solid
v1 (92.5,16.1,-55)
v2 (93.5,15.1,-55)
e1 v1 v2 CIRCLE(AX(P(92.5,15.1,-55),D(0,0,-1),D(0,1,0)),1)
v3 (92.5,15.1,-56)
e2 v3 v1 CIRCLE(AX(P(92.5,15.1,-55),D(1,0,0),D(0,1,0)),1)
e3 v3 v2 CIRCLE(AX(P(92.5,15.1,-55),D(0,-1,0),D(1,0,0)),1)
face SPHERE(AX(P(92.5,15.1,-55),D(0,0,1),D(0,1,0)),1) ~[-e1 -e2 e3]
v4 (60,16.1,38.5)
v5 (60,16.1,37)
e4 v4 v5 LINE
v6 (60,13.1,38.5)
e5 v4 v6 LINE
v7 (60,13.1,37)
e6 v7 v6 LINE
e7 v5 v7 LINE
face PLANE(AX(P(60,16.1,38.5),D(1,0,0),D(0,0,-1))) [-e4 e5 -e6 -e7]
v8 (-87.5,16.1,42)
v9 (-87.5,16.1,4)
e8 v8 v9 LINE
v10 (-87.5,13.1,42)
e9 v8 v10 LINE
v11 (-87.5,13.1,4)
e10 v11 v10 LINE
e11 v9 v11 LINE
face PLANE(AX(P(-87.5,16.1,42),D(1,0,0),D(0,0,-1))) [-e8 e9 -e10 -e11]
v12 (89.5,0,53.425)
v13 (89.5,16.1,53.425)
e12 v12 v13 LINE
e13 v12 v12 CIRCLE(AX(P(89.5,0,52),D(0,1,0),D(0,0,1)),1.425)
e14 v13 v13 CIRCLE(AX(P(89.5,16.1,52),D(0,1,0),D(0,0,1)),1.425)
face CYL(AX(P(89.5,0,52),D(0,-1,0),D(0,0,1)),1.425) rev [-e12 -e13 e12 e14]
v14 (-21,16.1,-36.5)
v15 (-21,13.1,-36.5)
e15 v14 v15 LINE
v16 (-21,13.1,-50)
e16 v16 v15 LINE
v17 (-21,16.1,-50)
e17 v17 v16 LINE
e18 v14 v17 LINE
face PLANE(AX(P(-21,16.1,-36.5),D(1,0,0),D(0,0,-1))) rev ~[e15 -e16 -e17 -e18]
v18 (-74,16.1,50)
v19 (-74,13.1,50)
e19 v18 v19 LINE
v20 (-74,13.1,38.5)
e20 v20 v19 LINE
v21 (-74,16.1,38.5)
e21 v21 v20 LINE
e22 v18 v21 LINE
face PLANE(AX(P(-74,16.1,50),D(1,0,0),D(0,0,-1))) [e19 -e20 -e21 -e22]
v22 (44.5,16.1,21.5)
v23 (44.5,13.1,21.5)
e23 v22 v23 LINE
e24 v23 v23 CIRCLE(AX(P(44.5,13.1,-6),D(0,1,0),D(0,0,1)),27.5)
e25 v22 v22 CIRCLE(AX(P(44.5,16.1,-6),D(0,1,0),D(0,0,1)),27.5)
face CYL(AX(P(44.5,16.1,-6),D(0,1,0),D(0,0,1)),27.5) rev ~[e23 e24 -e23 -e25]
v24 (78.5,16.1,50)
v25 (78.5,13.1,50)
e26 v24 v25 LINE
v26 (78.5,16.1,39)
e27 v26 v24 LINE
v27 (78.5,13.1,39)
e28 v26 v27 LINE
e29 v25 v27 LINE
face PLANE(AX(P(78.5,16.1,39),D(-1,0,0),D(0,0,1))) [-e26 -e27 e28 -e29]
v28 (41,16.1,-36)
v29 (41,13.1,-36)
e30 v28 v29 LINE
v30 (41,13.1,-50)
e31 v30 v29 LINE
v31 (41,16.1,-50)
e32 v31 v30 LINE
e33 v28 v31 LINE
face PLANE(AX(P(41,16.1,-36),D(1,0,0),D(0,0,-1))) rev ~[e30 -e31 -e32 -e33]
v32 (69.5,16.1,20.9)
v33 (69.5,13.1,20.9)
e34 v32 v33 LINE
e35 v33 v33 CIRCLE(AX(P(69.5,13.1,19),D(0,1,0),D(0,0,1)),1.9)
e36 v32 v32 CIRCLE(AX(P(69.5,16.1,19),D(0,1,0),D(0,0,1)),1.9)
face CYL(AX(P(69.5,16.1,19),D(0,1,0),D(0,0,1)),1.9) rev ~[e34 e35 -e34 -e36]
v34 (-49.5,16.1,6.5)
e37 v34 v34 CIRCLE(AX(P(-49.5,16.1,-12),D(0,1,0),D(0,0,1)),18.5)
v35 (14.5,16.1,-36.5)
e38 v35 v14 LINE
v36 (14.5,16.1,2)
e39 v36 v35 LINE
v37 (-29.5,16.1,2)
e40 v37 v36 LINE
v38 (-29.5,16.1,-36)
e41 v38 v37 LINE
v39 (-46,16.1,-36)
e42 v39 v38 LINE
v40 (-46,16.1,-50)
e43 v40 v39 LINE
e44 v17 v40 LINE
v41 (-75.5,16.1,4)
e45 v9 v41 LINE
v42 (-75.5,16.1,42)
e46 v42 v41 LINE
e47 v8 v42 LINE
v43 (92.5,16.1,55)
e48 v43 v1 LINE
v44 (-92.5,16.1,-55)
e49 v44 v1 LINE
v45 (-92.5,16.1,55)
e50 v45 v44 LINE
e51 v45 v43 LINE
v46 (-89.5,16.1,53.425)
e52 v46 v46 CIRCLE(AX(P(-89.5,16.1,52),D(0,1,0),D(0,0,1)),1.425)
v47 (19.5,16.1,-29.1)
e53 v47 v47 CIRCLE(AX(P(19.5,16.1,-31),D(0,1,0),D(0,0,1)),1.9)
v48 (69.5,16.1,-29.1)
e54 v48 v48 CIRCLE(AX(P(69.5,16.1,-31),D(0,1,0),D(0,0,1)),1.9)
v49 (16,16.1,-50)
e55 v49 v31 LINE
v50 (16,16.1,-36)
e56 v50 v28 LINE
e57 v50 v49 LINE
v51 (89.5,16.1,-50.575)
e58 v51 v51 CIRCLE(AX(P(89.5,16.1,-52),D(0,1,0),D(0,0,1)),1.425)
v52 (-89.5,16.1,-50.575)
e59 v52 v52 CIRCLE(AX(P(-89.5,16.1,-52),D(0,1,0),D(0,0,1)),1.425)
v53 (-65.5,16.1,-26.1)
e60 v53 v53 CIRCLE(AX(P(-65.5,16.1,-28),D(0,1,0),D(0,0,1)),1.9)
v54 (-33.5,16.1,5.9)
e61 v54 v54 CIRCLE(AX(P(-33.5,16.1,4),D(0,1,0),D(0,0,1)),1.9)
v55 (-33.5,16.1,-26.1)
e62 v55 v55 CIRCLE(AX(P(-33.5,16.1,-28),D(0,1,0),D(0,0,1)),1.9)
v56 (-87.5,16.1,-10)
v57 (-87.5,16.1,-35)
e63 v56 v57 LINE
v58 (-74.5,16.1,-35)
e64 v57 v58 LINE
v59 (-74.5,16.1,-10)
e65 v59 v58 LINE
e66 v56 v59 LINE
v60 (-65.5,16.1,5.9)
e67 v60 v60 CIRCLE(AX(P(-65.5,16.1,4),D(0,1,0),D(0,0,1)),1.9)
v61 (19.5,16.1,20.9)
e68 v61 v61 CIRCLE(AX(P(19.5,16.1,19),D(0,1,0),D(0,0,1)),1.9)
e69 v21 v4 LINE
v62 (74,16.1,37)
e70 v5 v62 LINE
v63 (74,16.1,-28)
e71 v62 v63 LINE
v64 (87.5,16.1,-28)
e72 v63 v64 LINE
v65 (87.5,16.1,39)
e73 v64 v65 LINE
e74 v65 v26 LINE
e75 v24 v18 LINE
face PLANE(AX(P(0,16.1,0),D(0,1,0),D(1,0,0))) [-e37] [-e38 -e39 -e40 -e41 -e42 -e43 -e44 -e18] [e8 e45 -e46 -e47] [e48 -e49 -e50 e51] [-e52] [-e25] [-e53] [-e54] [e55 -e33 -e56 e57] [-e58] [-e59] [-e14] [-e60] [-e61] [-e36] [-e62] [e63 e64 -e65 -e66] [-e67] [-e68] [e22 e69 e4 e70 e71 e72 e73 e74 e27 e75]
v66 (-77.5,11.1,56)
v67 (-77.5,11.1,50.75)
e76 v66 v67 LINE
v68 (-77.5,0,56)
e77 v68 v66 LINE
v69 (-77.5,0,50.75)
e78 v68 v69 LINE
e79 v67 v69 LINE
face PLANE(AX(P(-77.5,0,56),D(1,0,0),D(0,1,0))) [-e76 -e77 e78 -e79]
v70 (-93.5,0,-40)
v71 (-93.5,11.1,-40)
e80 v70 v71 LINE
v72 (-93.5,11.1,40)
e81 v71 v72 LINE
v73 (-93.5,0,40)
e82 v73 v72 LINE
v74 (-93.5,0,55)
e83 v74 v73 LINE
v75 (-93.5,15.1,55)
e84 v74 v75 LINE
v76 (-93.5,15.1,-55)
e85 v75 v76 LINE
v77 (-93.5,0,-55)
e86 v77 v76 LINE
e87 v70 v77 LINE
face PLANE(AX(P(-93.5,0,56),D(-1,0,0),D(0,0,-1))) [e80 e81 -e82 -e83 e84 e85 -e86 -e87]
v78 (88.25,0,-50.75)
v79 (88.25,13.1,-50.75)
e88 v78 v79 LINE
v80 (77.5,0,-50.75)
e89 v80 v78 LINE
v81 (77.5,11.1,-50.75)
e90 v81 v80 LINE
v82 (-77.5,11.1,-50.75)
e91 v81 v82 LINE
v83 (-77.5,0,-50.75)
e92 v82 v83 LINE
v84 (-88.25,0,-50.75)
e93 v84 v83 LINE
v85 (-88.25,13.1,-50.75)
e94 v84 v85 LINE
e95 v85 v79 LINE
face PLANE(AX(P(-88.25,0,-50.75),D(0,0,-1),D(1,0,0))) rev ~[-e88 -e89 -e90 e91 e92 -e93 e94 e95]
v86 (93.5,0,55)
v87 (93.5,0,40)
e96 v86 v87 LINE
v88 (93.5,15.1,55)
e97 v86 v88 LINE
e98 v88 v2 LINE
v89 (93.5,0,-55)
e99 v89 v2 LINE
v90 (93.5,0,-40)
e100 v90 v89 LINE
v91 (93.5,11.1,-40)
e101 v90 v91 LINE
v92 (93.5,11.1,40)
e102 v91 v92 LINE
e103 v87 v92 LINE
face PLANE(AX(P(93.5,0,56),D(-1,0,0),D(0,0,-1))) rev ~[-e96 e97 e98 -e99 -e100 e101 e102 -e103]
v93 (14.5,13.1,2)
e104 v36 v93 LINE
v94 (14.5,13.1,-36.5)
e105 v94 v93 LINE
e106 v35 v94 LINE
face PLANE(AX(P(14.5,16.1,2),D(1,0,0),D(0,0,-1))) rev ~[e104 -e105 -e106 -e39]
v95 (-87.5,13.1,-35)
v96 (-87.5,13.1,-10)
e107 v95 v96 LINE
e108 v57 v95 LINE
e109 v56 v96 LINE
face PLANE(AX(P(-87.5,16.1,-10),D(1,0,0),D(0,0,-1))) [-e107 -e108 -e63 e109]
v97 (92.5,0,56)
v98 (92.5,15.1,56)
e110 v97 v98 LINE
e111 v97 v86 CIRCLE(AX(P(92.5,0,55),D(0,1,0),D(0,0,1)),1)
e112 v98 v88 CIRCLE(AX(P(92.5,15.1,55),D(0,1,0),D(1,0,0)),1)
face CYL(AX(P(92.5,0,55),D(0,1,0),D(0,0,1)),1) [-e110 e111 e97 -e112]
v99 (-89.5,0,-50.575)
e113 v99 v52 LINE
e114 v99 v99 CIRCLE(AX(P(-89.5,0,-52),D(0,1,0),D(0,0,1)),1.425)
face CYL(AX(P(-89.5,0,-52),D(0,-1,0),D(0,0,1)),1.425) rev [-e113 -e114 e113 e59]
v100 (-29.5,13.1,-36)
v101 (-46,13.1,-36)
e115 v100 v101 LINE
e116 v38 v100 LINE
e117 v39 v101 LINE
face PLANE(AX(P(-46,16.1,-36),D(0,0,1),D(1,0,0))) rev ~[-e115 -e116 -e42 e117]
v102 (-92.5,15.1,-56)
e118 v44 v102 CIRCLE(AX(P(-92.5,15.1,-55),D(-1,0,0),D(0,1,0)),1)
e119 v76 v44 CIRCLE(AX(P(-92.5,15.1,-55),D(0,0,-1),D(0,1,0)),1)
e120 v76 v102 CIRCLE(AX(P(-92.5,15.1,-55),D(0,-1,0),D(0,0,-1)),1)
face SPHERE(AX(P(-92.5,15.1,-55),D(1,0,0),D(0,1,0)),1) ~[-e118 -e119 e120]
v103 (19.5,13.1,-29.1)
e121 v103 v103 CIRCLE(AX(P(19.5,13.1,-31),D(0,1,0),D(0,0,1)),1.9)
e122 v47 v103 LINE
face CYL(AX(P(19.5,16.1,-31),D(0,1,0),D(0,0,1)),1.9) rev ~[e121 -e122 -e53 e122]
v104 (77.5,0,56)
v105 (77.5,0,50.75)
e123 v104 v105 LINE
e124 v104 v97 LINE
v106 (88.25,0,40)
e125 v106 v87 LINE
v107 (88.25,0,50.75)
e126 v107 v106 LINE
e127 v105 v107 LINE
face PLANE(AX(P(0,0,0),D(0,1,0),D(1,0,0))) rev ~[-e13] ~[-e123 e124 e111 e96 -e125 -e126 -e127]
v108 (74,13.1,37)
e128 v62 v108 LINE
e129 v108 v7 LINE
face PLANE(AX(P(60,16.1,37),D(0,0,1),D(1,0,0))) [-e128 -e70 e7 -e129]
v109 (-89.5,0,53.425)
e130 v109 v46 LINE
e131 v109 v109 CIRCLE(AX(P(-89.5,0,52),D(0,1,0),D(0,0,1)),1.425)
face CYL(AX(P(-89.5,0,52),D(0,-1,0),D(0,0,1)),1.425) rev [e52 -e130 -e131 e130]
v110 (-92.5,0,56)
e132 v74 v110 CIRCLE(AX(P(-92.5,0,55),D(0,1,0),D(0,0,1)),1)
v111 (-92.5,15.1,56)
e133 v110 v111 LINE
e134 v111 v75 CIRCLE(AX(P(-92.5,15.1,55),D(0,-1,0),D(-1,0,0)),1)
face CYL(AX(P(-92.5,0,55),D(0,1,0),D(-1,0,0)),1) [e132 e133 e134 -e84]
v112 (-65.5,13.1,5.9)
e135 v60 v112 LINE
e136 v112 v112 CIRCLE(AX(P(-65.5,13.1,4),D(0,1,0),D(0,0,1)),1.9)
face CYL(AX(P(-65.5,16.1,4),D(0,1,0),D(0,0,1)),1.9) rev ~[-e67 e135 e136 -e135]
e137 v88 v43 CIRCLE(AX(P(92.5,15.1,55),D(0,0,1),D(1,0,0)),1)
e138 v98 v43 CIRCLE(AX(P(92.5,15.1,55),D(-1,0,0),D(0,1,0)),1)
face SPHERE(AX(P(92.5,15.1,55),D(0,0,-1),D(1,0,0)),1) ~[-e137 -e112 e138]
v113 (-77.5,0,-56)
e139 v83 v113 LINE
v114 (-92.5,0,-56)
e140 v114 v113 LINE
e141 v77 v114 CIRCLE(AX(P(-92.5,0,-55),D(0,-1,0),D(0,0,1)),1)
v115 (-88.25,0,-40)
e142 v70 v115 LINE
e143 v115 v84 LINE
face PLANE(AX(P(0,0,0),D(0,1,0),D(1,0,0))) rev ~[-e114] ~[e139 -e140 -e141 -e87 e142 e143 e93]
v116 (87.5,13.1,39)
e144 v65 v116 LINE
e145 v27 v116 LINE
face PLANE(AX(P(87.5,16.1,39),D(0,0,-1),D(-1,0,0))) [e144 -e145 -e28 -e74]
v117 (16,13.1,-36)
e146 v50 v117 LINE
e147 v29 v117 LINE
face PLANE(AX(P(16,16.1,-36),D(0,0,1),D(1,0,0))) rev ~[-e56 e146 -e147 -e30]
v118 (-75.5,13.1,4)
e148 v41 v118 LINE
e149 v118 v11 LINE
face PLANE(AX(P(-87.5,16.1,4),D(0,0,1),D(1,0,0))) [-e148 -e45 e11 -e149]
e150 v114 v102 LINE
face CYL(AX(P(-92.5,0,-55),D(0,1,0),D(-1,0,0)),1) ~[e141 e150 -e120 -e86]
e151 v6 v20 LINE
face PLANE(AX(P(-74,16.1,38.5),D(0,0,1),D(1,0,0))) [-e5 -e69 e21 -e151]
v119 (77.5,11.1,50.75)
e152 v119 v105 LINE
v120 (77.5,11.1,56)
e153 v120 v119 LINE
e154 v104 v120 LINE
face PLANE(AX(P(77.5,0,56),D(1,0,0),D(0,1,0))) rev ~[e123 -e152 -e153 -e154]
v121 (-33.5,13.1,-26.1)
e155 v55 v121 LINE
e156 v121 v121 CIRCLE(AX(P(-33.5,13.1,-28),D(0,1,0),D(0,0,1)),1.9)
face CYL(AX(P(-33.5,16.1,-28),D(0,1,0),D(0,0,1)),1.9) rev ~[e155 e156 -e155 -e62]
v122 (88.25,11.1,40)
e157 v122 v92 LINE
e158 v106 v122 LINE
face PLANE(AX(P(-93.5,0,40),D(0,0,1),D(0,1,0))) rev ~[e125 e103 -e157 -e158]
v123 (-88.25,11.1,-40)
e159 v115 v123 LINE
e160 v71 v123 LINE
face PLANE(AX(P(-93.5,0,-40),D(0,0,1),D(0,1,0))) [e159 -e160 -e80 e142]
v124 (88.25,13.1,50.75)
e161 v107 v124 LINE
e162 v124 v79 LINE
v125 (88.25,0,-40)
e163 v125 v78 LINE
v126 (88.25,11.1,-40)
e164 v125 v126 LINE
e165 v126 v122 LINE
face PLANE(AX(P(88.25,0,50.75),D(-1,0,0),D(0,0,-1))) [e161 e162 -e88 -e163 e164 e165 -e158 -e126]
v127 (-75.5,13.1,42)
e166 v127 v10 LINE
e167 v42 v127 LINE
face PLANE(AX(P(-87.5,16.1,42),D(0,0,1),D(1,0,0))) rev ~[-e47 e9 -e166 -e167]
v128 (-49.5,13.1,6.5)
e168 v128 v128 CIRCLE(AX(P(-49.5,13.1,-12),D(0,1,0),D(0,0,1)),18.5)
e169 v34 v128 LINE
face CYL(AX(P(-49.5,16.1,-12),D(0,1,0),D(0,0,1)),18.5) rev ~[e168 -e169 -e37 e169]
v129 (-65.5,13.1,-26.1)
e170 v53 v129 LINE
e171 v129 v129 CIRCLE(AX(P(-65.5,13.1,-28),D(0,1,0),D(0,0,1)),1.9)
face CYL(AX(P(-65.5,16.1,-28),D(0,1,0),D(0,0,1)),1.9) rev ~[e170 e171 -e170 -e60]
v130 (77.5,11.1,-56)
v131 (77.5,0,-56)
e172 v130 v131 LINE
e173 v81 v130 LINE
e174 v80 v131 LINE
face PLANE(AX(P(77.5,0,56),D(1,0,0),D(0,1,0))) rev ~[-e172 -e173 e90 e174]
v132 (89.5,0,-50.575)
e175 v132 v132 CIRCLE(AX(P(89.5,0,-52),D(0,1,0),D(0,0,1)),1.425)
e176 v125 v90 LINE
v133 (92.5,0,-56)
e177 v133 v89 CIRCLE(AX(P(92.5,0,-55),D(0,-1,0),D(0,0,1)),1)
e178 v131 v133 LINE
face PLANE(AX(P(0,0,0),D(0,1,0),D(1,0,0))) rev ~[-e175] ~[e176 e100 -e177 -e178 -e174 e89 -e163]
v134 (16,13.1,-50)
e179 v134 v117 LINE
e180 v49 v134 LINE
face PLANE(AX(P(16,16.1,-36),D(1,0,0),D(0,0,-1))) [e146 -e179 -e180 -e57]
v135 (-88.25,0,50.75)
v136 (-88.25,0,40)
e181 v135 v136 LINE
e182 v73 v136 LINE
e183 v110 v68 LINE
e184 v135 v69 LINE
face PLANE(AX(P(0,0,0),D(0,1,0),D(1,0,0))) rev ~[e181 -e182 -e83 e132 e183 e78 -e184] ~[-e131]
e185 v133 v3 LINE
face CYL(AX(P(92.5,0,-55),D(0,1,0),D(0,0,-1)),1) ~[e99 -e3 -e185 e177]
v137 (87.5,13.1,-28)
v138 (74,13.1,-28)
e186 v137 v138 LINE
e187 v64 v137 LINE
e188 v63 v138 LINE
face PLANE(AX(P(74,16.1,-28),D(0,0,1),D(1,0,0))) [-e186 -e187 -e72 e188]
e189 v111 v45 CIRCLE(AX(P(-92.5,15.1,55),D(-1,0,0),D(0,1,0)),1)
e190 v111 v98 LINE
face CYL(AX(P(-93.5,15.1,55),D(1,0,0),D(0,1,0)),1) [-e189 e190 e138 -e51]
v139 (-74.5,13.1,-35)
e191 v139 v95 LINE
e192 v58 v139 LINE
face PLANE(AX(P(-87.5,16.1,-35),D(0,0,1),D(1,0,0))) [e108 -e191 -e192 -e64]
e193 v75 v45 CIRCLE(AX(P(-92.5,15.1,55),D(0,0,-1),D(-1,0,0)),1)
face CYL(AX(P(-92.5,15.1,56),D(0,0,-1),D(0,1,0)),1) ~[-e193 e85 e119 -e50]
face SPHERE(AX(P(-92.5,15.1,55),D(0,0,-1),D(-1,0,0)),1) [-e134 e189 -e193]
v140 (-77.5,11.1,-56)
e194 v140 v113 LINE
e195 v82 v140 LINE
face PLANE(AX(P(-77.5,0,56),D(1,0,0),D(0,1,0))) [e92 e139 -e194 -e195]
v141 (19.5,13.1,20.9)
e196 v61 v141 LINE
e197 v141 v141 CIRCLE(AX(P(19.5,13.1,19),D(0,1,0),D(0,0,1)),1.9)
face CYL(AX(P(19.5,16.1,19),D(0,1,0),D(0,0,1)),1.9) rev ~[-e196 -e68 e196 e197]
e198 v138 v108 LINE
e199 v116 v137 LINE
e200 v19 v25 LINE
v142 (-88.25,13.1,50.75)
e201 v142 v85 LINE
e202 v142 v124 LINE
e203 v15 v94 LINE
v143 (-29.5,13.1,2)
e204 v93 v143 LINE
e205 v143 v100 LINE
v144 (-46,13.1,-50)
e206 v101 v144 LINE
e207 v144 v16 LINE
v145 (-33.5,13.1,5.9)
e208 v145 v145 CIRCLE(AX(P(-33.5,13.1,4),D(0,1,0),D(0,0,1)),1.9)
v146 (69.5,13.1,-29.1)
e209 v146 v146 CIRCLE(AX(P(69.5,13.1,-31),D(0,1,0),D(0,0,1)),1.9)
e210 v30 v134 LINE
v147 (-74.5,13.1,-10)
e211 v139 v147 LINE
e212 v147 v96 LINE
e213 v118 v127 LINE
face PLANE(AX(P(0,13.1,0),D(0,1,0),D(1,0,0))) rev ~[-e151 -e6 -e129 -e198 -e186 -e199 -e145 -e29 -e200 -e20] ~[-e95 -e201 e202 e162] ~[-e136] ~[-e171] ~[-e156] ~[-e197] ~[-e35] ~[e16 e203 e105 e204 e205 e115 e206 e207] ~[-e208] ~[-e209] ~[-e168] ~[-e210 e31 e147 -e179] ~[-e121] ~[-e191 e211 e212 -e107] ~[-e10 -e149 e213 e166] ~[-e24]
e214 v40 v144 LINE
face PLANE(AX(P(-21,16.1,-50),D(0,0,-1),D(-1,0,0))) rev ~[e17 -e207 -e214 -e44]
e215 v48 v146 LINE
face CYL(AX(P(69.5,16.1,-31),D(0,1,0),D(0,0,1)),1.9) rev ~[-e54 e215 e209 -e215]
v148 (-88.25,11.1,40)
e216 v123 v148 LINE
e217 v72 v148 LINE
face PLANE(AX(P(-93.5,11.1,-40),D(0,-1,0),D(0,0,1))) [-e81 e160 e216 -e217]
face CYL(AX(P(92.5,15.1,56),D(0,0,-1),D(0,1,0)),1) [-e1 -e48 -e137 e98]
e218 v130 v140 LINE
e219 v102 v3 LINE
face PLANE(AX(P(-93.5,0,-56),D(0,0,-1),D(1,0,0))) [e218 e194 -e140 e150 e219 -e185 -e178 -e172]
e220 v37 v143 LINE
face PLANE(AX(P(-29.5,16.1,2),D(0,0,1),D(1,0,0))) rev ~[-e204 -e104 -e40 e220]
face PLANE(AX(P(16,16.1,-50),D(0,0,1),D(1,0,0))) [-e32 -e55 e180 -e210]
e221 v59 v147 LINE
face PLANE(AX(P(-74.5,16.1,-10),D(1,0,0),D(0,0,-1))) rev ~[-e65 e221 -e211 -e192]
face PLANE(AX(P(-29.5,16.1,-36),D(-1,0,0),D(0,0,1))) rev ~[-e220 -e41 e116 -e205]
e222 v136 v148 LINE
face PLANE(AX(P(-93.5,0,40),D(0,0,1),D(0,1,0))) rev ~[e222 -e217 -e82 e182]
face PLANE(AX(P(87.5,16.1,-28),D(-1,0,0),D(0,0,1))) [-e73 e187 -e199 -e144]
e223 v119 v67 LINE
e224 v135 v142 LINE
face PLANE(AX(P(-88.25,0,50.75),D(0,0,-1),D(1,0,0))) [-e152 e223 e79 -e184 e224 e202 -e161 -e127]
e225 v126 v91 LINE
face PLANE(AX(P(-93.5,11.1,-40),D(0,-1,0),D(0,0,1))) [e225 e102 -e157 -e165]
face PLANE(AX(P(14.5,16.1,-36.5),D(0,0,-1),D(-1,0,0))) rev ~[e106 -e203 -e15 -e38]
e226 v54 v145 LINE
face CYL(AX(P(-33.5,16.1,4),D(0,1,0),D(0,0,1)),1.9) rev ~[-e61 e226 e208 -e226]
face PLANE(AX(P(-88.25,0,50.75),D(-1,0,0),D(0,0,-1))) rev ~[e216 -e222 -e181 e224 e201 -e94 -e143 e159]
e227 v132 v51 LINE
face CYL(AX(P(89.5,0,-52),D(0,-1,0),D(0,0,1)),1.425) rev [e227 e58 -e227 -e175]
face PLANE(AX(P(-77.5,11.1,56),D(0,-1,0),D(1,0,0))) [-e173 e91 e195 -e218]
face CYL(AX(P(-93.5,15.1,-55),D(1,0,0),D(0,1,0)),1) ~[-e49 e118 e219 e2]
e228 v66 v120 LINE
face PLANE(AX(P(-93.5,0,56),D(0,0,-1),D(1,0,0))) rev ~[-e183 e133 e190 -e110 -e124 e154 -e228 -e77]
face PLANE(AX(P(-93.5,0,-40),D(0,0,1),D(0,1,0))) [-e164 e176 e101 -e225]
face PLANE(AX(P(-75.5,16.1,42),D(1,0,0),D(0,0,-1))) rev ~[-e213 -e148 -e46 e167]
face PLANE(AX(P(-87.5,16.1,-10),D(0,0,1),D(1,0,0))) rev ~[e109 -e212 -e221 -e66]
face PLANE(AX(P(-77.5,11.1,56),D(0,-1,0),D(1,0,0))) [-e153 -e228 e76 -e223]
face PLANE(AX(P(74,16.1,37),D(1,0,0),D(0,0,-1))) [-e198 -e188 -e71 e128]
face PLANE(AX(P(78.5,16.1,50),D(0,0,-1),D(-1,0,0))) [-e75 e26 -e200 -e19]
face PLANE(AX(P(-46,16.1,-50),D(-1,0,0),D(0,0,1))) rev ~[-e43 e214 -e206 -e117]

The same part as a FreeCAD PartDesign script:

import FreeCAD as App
import Part
import Sketcher

V = App.Vector
Q = App.Units.Quantity


def edges_at(feature, points):
    """Names of the edges that pass closest to the given points."""
    edges = feature.Shape.Edges
    near = lambda p: min(range(len(edges)), key=lambda i: edges[i].distToShape(Part.Vertex(*p))[0])
    return sorted({f"Edge{near(p) + 1}" for p in points})


def add_polygon(sketch, points):
    """Adds a closed chain of lines whose ends are joined by coincident constraints."""
    first, n = sketch.GeometryCount, len(points)
    for a, b in zip(points, points[1:] + points[:1]):
        sketch.addGeometry(Part.LineSegment(App.Vector(*a, 0), App.Vector(*b, 0)), False)
    for i in range(n):
        sketch.addConstraint(Sketcher.Constraint("Coincident", first + i, 2, first + (i + 1) % n, 1))

doc = App.newDocument("Part")
body = doc.addObject("PartDesign::Body", "Body")

sketch1 = body.newObject("Sketcher::SketchObject", "Sketch")
sketch1.AttachmentSupport = (doc.getObject("XZ_Plane"), [""])
sketch1.MapMode = "FlatFace"
add_polygon(sketch1, [(-93.5, -56), (-93.5, 56), (93.5, 56), (93.5, -56)])
sketch1.addGeometry(Part.Circle(V(-89.5, 52, 0), V(0, 0, 1), 1.4), False)
sketch1.addGeometry(Part.Circle(V(89.5, 52, 0), V(0, 0, 1), 1.4), False)
sketch1.addGeometry(Part.Circle(V(-89.5, -52, 0), V(0, 0, 1), 1.4), False)
add_polygon(sketch1, [(88.2, 50.8), (-88.2, 50.8), (-88.2, -50.8), (88.2, -50.8)])
sketch1.addGeometry(Part.Circle(V(89.5, -52, 0), V(0, 0, 1), 1.4), False)
sketch1.addConstraint(Sketcher.Constraint("Vertical", 0))
sketch1.addConstraint(Sketcher.Constraint("Horizontal", 1))
sketch1.addConstraint(Sketcher.Constraint("Vertical", 2))
sketch1.addConstraint(Sketcher.Constraint("Horizontal", 3))
sketch1.addConstraint(Sketcher.Constraint("Horizontal", 7))
sketch1.addConstraint(Sketcher.Constraint("Vertical", 8))
sketch1.addConstraint(Sketcher.Constraint("Horizontal", 9))
sketch1.addConstraint(Sketcher.Constraint("Vertical", 10))
sketch1.addConstraint(Sketcher.Constraint("Equal", 4, 5))
sketch1.addConstraint(Sketcher.Constraint("Equal", 5, 6))
sketch1.addConstraint(Sketcher.Constraint("Equal", 6, 11))
sketch1.addConstraint(Sketcher.Constraint("Symmetric", 5, 3, 6, 3, -1, 1))
sketch1.addConstraint(Sketcher.Constraint("Symmetric", 4, 3, 11, 3, -1, 1))
sketch1.addConstraint(Sketcher.Constraint("Symmetric", 0, 2, 2, 2, -1, 1))
sketch1.addConstraint(Sketcher.Constraint("Symmetric", 7, 2, 9, 2, -1, 1))
sketch1.addConstraint(Sketcher.Constraint("Symmetric", 4, 3, 5, 3, -2))
sketch1.addConstraint(Sketcher.Constraint("Diameter", 4, Q("2.85 mm")))
sketch1.addConstraint(Sketcher.Constraint("DistanceX", 1, 1, 1, 2, Q("187 mm")))
sketch1.addConstraint(Sketcher.Constraint("DistanceY", 0, 1, 0, 2, Q("112 mm")))
sketch1.addConstraint(Sketcher.Constraint("DistanceX", 7, 2, 7, 1, Q("176.5 mm")))
sketch1.addConstraint(Sketcher.Constraint("DistanceY", 8, 2, 8, 1, Q("101.5 mm")))
sketch1.addConstraint(Sketcher.Constraint("DistanceY", -1, 1, 4, 3, Q("52 mm")))
sketch1.addConstraint(Sketcher.Constraint("DistanceX", 4, 3, 5, 3, Q("179 mm")))
pad1 = body.newObject("PartDesign::Pad", "Pad")
pad1.Profile = sketch1
pad1.Length = 16.1
pad1.Reversed = True

sketch2 = body.newObject("Sketcher::SketchObject", "Sketch001")
sketch2.AttachmentSupport = (doc.getObject("XZ_Plane"), [""])
sketch2.MapMode = "FlatFace"
sketch2.AttachmentOffset = App.Placement(V(0, 0, -16.1), App.Rotation())
add_polygon(sketch2, [(-88, -51), (-88, 51), (88, 51), (88, -51)])
sketch2.addConstraint(Sketcher.Constraint("Vertical", 0))
sketch2.addConstraint(Sketcher.Constraint("Horizontal", 1))
sketch2.addConstraint(Sketcher.Constraint("Vertical", 2))
sketch2.addConstraint(Sketcher.Constraint("Horizontal", 3))
sketch2.addConstraint(Sketcher.Constraint("Symmetric", 0, 2, 2, 2, -1, 1))
sketch2.addConstraint(Sketcher.Constraint("DistanceX", 1, 1, 1, 2, Q("176.5 mm")))
sketch2.addConstraint(Sketcher.Constraint("DistanceY", 0, 1, 0, 2, Q("101.5 mm")))
pad2 = body.newObject("PartDesign::Pad", "Pad001")
pad2.Profile = sketch2
pad2.Length = 3

sketch3 = body.newObject("Sketcher::SketchObject", "Sketch002")
sketch3.AttachmentSupport = (doc.getObject("XZ_Plane"), [""])
sketch3.MapMode = "FlatFace"
sketch3.AttachmentOffset = App.Placement(V(0, 0, -16.1), App.Rotation())
add_polygon(sketch3, [(-88, 4), (-88, 42), (-76, 42), (-76, 4)])
sketch3.addConstraint(Sketcher.Constraint("Vertical", 0))
sketch3.addConstraint(Sketcher.Constraint("Horizontal", 1))
sketch3.addConstraint(Sketcher.Constraint("Vertical", 2))
sketch3.addConstraint(Sketcher.Constraint("Horizontal", 3))
sketch3.addConstraint(Sketcher.Constraint("DistanceX", 1, 1, 1, 2, Q("12 mm")))
sketch3.addConstraint(Sketcher.Constraint("DistanceY", 0, 1, 0, 2, Q("38 mm")))
sketch3.addConstraint(Sketcher.Constraint("DistanceY", -1, 1, 0, 2, Q("42 mm")))
sketch3.addConstraint(Sketcher.Constraint("DistanceX", 0, 2, -1, 1, Q("87.5 mm")))
pocket1 = body.newObject("PartDesign::Pocket", "Pocket")
pocket1.Profile = sketch3
pocket1.Type = "UpToFirst"
pocket1.Reversed = True

sketch4 = body.newObject("Sketcher::SketchObject", "Sketch003")
sketch4.AttachmentSupport = (doc.getObject("XZ_Plane"), [""])
sketch4.MapMode = "FlatFace"
sketch4.AttachmentOffset = App.Placement(V(0, 0, -16.1), App.Rotation())
add_polygon(sketch4, [(-30, -36), (-30, 2), (14, 2), (14, -36), (-21, -36), (-21, -50), (-46, -50), (-46, -36)])
sketch4.addConstraint(Sketcher.Constraint("Vertical", 0))
sketch4.addConstraint(Sketcher.Constraint("Horizontal", 1))
sketch4.addConstraint(Sketcher.Constraint("Vertical", 2))
sketch4.addConstraint(Sketcher.Constraint("Horizontal", 3))
sketch4.addConstraint(Sketcher.Constraint("Vertical", 4))
sketch4.addConstraint(Sketcher.Constraint("Horizontal", 5))
sketch4.addConstraint(Sketcher.Constraint("Vertical", 6))
sketch4.addConstraint(Sketcher.Constraint("Horizontal", 7))
sketch4.addConstraint(Sketcher.Constraint("DistanceX", 1, 1, 1, 2, Q("44 mm")))
sketch4.addConstraint(Sketcher.Constraint("DistanceX", 5, 2, 5, 1, Q("25 mm")))
sketch4.addConstraint(Sketcher.Constraint("DistanceY", 0, 1, 0, 2, Q("38 mm")))
sketch4.addConstraint(Sketcher.Constraint("DistanceY", 6, 1, 6, 2, Q("14 mm")))
sketch4.addConstraint(Sketcher.Constraint("DistanceX", 3, 2, 3, 1, Q("35.5 mm")))
sketch4.addConstraint(Sketcher.Constraint("DistanceY", 2, 2, 2, 1, Q("38.5 mm")))
sketch4.addConstraint(Sketcher.Constraint("DistanceY", -1, 1, 0, 2, Q("2 mm")))
sketch4.addConstraint(Sketcher.Constraint("DistanceX", 3, 2, -1, 1, Q("21 mm")))
pocket2 = body.newObject("PartDesign::Pocket", "Pocket001")
pocket2.Profile = sketch4
pocket2.Type = "UpToFirst"
pocket2.Reversed = True

sketch5 = body.newObject("Sketcher::SketchObject", "Sketch004")
sketch5.AttachmentSupport = (doc.getObject("XZ_Plane"), [""])
sketch5.MapMode = "FlatFace"
sketch5.AttachmentOffset = App.Placement(V(0, 0, -16.1), App.Rotation())
add_polygon(sketch5, [(-88, -35), (-88, -10), (-74, -10), (-74, -35)])
sketch5.addConstraint(Sketcher.Constraint("Vertical", 0))
sketch5.addConstraint(Sketcher.Constraint("Horizontal", 1))
sketch5.addConstraint(Sketcher.Constraint("Vertical", 2))
sketch5.addConstraint(Sketcher.Constraint("Horizontal", 3))
sketch5.addConstraint(Sketcher.Constraint("DistanceX", 1, 1, 1, 2, Q("13 mm")))
sketch5.addConstraint(Sketcher.Constraint("DistanceY", 0, 1, 0, 2, Q("25 mm")))
sketch5.addConstraint(Sketcher.Constraint("DistanceY", 0, 2, -1, 1, Q("10 mm")))
sketch5.addConstraint(Sketcher.Constraint("DistanceX", 0, 2, -1, 1, Q("87.5 mm")))
pocket3 = body.newObject("PartDesign::Pocket", "Pocket002")
pocket3.Profile = sketch5
pocket3.Type = "UpToFirst"
pocket3.Reversed = True

sketch6 = body.newObject("Sketcher::SketchObject", "Sketch005")
sketch6.AttachmentSupport = (doc.getObject("XZ_Plane"), [""])
sketch6.MapMode = "FlatFace"
sketch6.AttachmentOffset = App.Placement(V(0, 0, -16.1), App.Rotation())
add_polygon(sketch6, [(60, 37), (60, 38.5), (-74, 38.5), (-74, 50), (78.5, 50), (78.5, 39), (87.5, 39), (87.5, -28), (74, -28), (74, 37)])
sketch6.addConstraint(Sketcher.Constraint("Vertical", 0))
sketch6.addConstraint(Sketcher.Constraint("Horizontal", 1))
sketch6.addConstraint(Sketcher.Constraint("Vertical", 2))
sketch6.addConstraint(Sketcher.Constraint("Horizontal", 3))
sketch6.addConstraint(Sketcher.Constraint("Vertical", 4))
sketch6.addConstraint(Sketcher.Constraint("Horizontal", 5))
sketch6.addConstraint(Sketcher.Constraint("Vertical", 6))
sketch6.addConstraint(Sketcher.Constraint("Horizontal", 7))
sketch6.addConstraint(Sketcher.Constraint("Vertical", 8))
sketch6.addConstraint(Sketcher.Constraint("Horizontal", 9))
sketch6.addConstraint(Sketcher.Constraint("DistanceX", 1, 2, 1, 1, Q("134 mm")))
sketch6.addConstraint(Sketcher.Constraint("DistanceX", 5, 1, 5, 2, Q("9 mm")))
sketch6.addConstraint(Sketcher.Constraint("DistanceX", 9, 2, 9, 1, Q("14 mm")))
sketch6.addConstraint(Sketcher.Constraint("DistanceY", 4, 2, 4, 1, Q("11 mm")))
sketch6.addConstraint(Sketcher.Constraint("DistanceY", 6, 2, 6, 1, Q("67 mm")))
sketch6.addConstraint(Sketcher.Constraint("DistanceY", 8, 1, 8, 2, Q("65 mm")))
sketch6.addConstraint(Sketcher.Constraint("DistanceX", 3, 1, 3, 2, Q("152.5 mm")))
sketch6.addConstraint(Sketcher.Constraint("DistanceY", 0, 1, 0, 2, Q("1.5 mm")))
sketch6.addConstraint(Sketcher.Constraint("DistanceX", -1, 1, 0, 2, Q("60 mm")))
sketch6.addConstraint(Sketcher.Constraint("DistanceY", -1, 1, 2, 2, Q("50 mm")))
pocket4 = body.newObject("PartDesign::Pocket", "Pocket003")
pocket4.Profile = sketch6
pocket4.Type = "UpToFirst"
pocket4.Reversed = True

sketch7 = body.newObject("Sketcher::SketchObject", "Sketch006")
sketch7.AttachmentSupport = (doc.getObject("XZ_Plane"), [""])
sketch7.MapMode = "FlatFace"
sketch7.AttachmentOffset = App.Placement(V(0, 0, -16.1), App.Rotation())
add_polygon(sketch7, [(16, -50), (16, -36), (41, -36), (41, -50)])
sketch7.addConstraint(Sketcher.Constraint("Vertical", 0))
sketch7.addConstraint(Sketcher.Constraint("Horizontal", 1))
sketch7.addConstraint(Sketcher.Constraint("Vertical", 2))
sketch7.addConstraint(Sketcher.Constraint("Horizontal", 3))
sketch7.addConstraint(Sketcher.Constraint("DistanceX", 1, 1, 1, 2, Q("25 mm")))
sketch7.addConstraint(Sketcher.Constraint("DistanceY", 0, 1, 0, 2, Q("14 mm")))
sketch7.addConstraint(Sketcher.Constraint("DistanceX", -1, 1, 0, 2, Q("16 mm")))
sketch7.addConstraint(Sketcher.Constraint("DistanceY", 0, 2, -1, 1, Q("36 mm")))
pocket5 = body.newObject("PartDesign::Pocket", "Pocket004")
pocket5.Profile = sketch7
pocket5.Type = "UpToFirst"
pocket5.Reversed = True

sketch8 = body.newObject("Sketcher::SketchObject", "Sketch007")
sketch8.AttachmentSupport = (doc.getObject("XZ_Plane"), [""])
sketch8.MapMode = "FlatFace"
sketch8.AttachmentOffset = App.Placement(V(0, 0, -16.1), App.Rotation())
sketch8.addGeometry(Part.Circle(V(-65.5, 4, 0), V(0, 0, 1), 1.9), False)
sketch8.addConstraint(Sketcher.Constraint("Diameter", 0, Q("3.8 mm")))
sketch8.addConstraint(Sketcher.Constraint("DistanceY", -1, 1, 0, 3, Q("4 mm")))
sketch8.addConstraint(Sketcher.Constraint("DistanceX", 0, 3, -1, 1, Q("65.5 mm")))
pocket6 = body.newObject("PartDesign::Pocket", "Pocket005")
pocket6.Profile = sketch8
pocket6.Type = "UpToFirst"
pocket6.Reversed = True

sketch9 = body.newObject("Sketcher::SketchObject", "Sketch008")
sketch9.AttachmentSupport = (doc.getObject("XZ_Plane"), [""])
sketch9.MapMode = "FlatFace"
sketch9.AttachmentOffset = App.Placement(V(0, 0, -16.1), App.Rotation())
sketch9.addGeometry(Part.Circle(V(-65.5, -28, 0), V(0, 0, 1), 1.9), False)
sketch9.addConstraint(Sketcher.Constraint("Diameter", 0, Q("3.8 mm")))
sketch9.addConstraint(Sketcher.Constraint("DistanceY", 0, 3, -1, 1, Q("28 mm")))
sketch9.addConstraint(Sketcher.Constraint("DistanceX", 0, 3, -1, 1, Q("65.5 mm")))
pocket7 = body.newObject("PartDesign::Pocket", "Pocket006")
pocket7.Profile = sketch9
pocket7.Type = "UpToFirst"
pocket7.Reversed = True

sketch10 = body.newObject("Sketcher::SketchObject", "Sketch009")
sketch10.AttachmentSupport = (doc.getObject("XZ_Plane"), [""])
sketch10.MapMode = "FlatFace"
sketch10.AttachmentOffset = App.Placement(V(0, 0, -16.1), App.Rotation())
sketch10.addGeometry(Part.Circle(V(-33.5, -28, 0), V(0, 0, 1), 1.9), False)
sketch10.addConstraint(Sketcher.Constraint("Diameter", 0, Q("3.8 mm")))
sketch10.addConstraint(Sketcher.Constraint("DistanceY", 0, 3, -1, 1, Q("28 mm")))
sketch10.addConstraint(Sketcher.Constraint("DistanceX", 0, 3, -1, 1, Q("33.5 mm")))
pocket8 = body.newObject("PartDesign::Pocket", "Pocket007")
pocket8.Profile = sketch10
pocket8.Type = "UpToFirst"
pocket8.Reversed = True

sketch11 = body.newObject("Sketcher::SketchObject", "Sketch010")
sketch11.AttachmentSupport = (doc.getObject("XZ_Plane"), [""])
sketch11.MapMode = "FlatFace"
sketch11.AttachmentOffset = App.Placement(V(0, 0, -16.1), App.Rotation())
sketch11.addGeometry(Part.Circle(V(-33.5, 4, 0), V(0, 0, 1), 1.9), False)
sketch11.addConstraint(Sketcher.Constraint("Diameter", 0, Q("3.8 mm")))
sketch11.addConstraint(Sketcher.Constraint("DistanceY", -1, 1, 0, 3, Q("4 mm")))
sketch11.addConstraint(Sketcher.Constraint("DistanceX", 0, 3, -1, 1, Q("33.5 mm")))
pocket9 = body.newObject("PartDesign::Pocket", "Pocket008")
pocket9.Profile = sketch11
pocket9.Type = "UpToFirst"
pocket9.Reversed = True

sketch12 = body.newObject("Sketcher::SketchObject", "Sketch011")
sketch12.AttachmentSupport = (doc.getObject("XZ_Plane"), [""])
sketch12.MapMode = "FlatFace"
sketch12.AttachmentOffset = App.Placement(V(0, 0, -16.1), App.Rotation())
sketch12.addGeometry(Part.Circle(V(-50, -12, 0), V(0, 0, 1), 18), False)
sketch12.addConstraint(Sketcher.Constraint("Diameter", 0, Q("37 mm")))
sketch12.addConstraint(Sketcher.Constraint("DistanceY", 0, 3, -1, 1, Q("12 mm")))
sketch12.addConstraint(Sketcher.Constraint("DistanceX", 0, 3, -1, 1, Q("49.5 mm")))
pocket10 = body.newObject("PartDesign::Pocket", "Pocket009")
pocket10.Profile = sketch12
pocket10.Type = "UpToFirst"
pocket10.Reversed = True

sketch13 = body.newObject("Sketcher::SketchObject", "Sketch012")
sketch13.AttachmentSupport = (doc.getObject("XZ_Plane"), [""])
sketch13.MapMode = "FlatFace"
sketch13.AttachmentOffset = App.Placement(V(0, 0, -16.1), App.Rotation())
sketch13.addGeometry(Part.Circle(V(44, -6, 0), V(0, 0, 1), 28), False)
sketch13.addConstraint(Sketcher.Constraint("Diameter", 0, Q("55 mm")))
sketch13.addConstraint(Sketcher.Constraint("DistanceY", 0, 3, -1, 1, Q("6 mm")))
sketch13.addConstraint(Sketcher.Constraint("DistanceX", -1, 1, 0, 3, Q("44.5 mm")))
pocket11 = body.newObject("PartDesign::Pocket", "Pocket010")
pocket11.Profile = sketch13
pocket11.Type = "UpToFirst"
pocket11.Reversed = True

sketch14 = body.newObject("Sketcher::SketchObject", "Sketch013")
sketch14.AttachmentSupport = (doc.getObject("XZ_Plane"), [""])
sketch14.MapMode = "FlatFace"
sketch14.AttachmentOffset = App.Placement(V(0, 0, -16.1), App.Rotation())
sketch14.addGeometry(Part.Circle(V(19.5, 19, 0), V(0, 0, 1), 1.9), False)
sketch14.addConstraint(Sketcher.Constraint("Diameter", 0, Q("3.8 mm")))
sketch14.addConstraint(Sketcher.Constraint("DistanceY", -1, 1, 0, 3, Q("19 mm")))
sketch14.addConstraint(Sketcher.Constraint("DistanceX", -1, 1, 0, 3, Q("19.5 mm")))
pocket12 = body.newObject("PartDesign::Pocket", "Pocket011")
pocket12.Profile = sketch14
pocket12.Type = "UpToFirst"
pocket12.Reversed = True

sketch15 = body.newObject("Sketcher::SketchObject", "Sketch014")
sketch15.AttachmentSupport = (doc.getObject("XZ_Plane"), [""])
sketch15.MapMode = "FlatFace"
sketch15.AttachmentOffset = App.Placement(V(0, 0, -16.1), App.Rotation())
sketch15.addGeometry(Part.Circle(V(69.5, 19, 0), V(0, 0, 1), 1.9), False)
sketch15.addConstraint(Sketcher.Constraint("Diameter", 0, Q("3.8 mm")))
sketch15.addConstraint(Sketcher.Constraint("DistanceY", -1, 1, 0, 3, Q("19 mm")))
sketch15.addConstraint(Sketcher.Constraint("DistanceX", -1, 1, 0, 3, Q("69.5 mm")))
pocket13 = body.newObject("PartDesign::Pocket", "Pocket012")
pocket13.Profile = sketch15
pocket13.Type = "UpToFirst"
pocket13.Reversed = True

sketch16 = body.newObject("Sketcher::SketchObject", "Sketch015")
sketch16.AttachmentSupport = (doc.getObject("XZ_Plane"), [""])
sketch16.MapMode = "FlatFace"
sketch16.AttachmentOffset = App.Placement(V(0, 0, -16.1), App.Rotation())
sketch16.addGeometry(Part.Circle(V(69.5, -31, 0), V(0, 0, 1), 1.9), False)
sketch16.addConstraint(Sketcher.Constraint("Diameter", 0, Q("3.8 mm")))
sketch16.addConstraint(Sketcher.Constraint("DistanceY", 0, 3, -1, 1, Q("31 mm")))
sketch16.addConstraint(Sketcher.Constraint("DistanceX", -1, 1, 0, 3, Q("69.5 mm")))
pocket14 = body.newObject("PartDesign::Pocket", "Pocket013")
pocket14.Profile = sketch16
pocket14.Type = "UpToFirst"
pocket14.Reversed = True

sketch17 = body.newObject("Sketcher::SketchObject", "Sketch016")
sketch17.AttachmentSupport = (doc.getObject("XZ_Plane"), [""])
sketch17.MapMode = "FlatFace"
sketch17.AttachmentOffset = App.Placement(V(0, 0, -16.1), App.Rotation())
sketch17.addGeometry(Part.Circle(V(19.5, -31, 0), V(0, 0, 1), 1.9), False)
sketch17.addConstraint(Sketcher.Constraint("Diameter", 0, Q("3.8 mm")))
sketch17.addConstraint(Sketcher.Constraint("DistanceY", 0, 3, -1, 1, Q("31 mm")))
sketch17.addConstraint(Sketcher.Constraint("DistanceX", -1, 1, 0, 3, Q("19.5 mm")))
pocket15 = body.newObject("PartDesign::Pocket", "Pocket014")
pocket15.Profile = sketch17
pocket15.Type = "UpToFirst"
pocket15.Reversed = True

sketch18 = body.newObject("Sketcher::SketchObject", "Sketch017")
sketch18.AttachmentSupport = (doc.getObject("XY_Plane"), [""])
sketch18.MapMode = "FlatFace"
sketch18.AttachmentOffset = App.Placement(V(0, 0, 56), App.Rotation())
add_polygon(sketch18, [(-78, 11), (-78, 0), (78, 0), (78, 11)])
sketch18.addConstraint(Sketcher.Constraint("Vertical", 0))
sketch18.addConstraint(Sketcher.Constraint("Horizontal", 1))
sketch18.addConstraint(Sketcher.Constraint("Vertical", 2))
sketch18.addConstraint(Sketcher.Constraint("Horizontal", 3))
sketch18.addConstraint(Sketcher.Constraint("Symmetric", 0, 2, 1, 2, -1, 1))
sketch18.addConstraint(Sketcher.Constraint("DistanceX", 1, 1, 1, 2, Q("155 mm")))
sketch18.addConstraint(Sketcher.Constraint("DistanceY", 0, 2, 0, 1, Q("11.1 mm")))
pocket16 = body.newObject("PartDesign::Pocket", "Pocket015")
pocket16.Profile = sketch18
pocket16.Type = "ThroughAll"

sketch19 = body.newObject("Sketcher::SketchObject", "Sketch018")
sketch19.AttachmentSupport = (doc.getObject("YZ_Plane"), [""])
sketch19.MapMode = "FlatFace"
sketch19.AttachmentOffset = App.Placement(V(0, 0, -93.5), App.Rotation())
add_polygon(sketch19, [(11, -40), (0, -40), (0, 40), (11, 40)])
sketch19.addConstraint(Sketcher.Constraint("Horizontal", 0))
sketch19.addConstraint(Sketcher.Constraint("Vertical", 1))
sketch19.addConstraint(Sketcher.Constraint("Horizontal", 2))
sketch19.addConstraint(Sketcher.Constraint("Vertical", 3))
sketch19.addConstraint(Sketcher.Constraint("Symmetric", 0, 2, 1, 2, -1, 1))
sketch19.addConstraint(Sketcher.Constraint("DistanceY", 1, 1, 1, 2, Q("80 mm")))
sketch19.addConstraint(Sketcher.Constraint("DistanceX", 0, 2, 0, 1, Q("11.1 mm")))
pocket17 = body.newObject("PartDesign::Pocket", "Pocket016")
pocket17.Profile = sketch19
pocket17.Type = "ThroughAll"
pocket17.Reversed = True
doc.recompute()

fillet = body.newObject("PartDesign::Fillet", "Fillet")
fillet.Base = (pocket17, edges_at(pocket17, [
    (93.5, 16.1, 0),
    (0, 16.1, -56),
    (-93.5, 16.1, 0),
    (-93.5, 8.05, -56),
    (93.5, 8.05, -56),
    (93.5, 8.05, 56),
    (-93.5, 8.05, 56),
    (0, 16.1, 56),
]))
fillet.Radius = 1

doc.recompute()
